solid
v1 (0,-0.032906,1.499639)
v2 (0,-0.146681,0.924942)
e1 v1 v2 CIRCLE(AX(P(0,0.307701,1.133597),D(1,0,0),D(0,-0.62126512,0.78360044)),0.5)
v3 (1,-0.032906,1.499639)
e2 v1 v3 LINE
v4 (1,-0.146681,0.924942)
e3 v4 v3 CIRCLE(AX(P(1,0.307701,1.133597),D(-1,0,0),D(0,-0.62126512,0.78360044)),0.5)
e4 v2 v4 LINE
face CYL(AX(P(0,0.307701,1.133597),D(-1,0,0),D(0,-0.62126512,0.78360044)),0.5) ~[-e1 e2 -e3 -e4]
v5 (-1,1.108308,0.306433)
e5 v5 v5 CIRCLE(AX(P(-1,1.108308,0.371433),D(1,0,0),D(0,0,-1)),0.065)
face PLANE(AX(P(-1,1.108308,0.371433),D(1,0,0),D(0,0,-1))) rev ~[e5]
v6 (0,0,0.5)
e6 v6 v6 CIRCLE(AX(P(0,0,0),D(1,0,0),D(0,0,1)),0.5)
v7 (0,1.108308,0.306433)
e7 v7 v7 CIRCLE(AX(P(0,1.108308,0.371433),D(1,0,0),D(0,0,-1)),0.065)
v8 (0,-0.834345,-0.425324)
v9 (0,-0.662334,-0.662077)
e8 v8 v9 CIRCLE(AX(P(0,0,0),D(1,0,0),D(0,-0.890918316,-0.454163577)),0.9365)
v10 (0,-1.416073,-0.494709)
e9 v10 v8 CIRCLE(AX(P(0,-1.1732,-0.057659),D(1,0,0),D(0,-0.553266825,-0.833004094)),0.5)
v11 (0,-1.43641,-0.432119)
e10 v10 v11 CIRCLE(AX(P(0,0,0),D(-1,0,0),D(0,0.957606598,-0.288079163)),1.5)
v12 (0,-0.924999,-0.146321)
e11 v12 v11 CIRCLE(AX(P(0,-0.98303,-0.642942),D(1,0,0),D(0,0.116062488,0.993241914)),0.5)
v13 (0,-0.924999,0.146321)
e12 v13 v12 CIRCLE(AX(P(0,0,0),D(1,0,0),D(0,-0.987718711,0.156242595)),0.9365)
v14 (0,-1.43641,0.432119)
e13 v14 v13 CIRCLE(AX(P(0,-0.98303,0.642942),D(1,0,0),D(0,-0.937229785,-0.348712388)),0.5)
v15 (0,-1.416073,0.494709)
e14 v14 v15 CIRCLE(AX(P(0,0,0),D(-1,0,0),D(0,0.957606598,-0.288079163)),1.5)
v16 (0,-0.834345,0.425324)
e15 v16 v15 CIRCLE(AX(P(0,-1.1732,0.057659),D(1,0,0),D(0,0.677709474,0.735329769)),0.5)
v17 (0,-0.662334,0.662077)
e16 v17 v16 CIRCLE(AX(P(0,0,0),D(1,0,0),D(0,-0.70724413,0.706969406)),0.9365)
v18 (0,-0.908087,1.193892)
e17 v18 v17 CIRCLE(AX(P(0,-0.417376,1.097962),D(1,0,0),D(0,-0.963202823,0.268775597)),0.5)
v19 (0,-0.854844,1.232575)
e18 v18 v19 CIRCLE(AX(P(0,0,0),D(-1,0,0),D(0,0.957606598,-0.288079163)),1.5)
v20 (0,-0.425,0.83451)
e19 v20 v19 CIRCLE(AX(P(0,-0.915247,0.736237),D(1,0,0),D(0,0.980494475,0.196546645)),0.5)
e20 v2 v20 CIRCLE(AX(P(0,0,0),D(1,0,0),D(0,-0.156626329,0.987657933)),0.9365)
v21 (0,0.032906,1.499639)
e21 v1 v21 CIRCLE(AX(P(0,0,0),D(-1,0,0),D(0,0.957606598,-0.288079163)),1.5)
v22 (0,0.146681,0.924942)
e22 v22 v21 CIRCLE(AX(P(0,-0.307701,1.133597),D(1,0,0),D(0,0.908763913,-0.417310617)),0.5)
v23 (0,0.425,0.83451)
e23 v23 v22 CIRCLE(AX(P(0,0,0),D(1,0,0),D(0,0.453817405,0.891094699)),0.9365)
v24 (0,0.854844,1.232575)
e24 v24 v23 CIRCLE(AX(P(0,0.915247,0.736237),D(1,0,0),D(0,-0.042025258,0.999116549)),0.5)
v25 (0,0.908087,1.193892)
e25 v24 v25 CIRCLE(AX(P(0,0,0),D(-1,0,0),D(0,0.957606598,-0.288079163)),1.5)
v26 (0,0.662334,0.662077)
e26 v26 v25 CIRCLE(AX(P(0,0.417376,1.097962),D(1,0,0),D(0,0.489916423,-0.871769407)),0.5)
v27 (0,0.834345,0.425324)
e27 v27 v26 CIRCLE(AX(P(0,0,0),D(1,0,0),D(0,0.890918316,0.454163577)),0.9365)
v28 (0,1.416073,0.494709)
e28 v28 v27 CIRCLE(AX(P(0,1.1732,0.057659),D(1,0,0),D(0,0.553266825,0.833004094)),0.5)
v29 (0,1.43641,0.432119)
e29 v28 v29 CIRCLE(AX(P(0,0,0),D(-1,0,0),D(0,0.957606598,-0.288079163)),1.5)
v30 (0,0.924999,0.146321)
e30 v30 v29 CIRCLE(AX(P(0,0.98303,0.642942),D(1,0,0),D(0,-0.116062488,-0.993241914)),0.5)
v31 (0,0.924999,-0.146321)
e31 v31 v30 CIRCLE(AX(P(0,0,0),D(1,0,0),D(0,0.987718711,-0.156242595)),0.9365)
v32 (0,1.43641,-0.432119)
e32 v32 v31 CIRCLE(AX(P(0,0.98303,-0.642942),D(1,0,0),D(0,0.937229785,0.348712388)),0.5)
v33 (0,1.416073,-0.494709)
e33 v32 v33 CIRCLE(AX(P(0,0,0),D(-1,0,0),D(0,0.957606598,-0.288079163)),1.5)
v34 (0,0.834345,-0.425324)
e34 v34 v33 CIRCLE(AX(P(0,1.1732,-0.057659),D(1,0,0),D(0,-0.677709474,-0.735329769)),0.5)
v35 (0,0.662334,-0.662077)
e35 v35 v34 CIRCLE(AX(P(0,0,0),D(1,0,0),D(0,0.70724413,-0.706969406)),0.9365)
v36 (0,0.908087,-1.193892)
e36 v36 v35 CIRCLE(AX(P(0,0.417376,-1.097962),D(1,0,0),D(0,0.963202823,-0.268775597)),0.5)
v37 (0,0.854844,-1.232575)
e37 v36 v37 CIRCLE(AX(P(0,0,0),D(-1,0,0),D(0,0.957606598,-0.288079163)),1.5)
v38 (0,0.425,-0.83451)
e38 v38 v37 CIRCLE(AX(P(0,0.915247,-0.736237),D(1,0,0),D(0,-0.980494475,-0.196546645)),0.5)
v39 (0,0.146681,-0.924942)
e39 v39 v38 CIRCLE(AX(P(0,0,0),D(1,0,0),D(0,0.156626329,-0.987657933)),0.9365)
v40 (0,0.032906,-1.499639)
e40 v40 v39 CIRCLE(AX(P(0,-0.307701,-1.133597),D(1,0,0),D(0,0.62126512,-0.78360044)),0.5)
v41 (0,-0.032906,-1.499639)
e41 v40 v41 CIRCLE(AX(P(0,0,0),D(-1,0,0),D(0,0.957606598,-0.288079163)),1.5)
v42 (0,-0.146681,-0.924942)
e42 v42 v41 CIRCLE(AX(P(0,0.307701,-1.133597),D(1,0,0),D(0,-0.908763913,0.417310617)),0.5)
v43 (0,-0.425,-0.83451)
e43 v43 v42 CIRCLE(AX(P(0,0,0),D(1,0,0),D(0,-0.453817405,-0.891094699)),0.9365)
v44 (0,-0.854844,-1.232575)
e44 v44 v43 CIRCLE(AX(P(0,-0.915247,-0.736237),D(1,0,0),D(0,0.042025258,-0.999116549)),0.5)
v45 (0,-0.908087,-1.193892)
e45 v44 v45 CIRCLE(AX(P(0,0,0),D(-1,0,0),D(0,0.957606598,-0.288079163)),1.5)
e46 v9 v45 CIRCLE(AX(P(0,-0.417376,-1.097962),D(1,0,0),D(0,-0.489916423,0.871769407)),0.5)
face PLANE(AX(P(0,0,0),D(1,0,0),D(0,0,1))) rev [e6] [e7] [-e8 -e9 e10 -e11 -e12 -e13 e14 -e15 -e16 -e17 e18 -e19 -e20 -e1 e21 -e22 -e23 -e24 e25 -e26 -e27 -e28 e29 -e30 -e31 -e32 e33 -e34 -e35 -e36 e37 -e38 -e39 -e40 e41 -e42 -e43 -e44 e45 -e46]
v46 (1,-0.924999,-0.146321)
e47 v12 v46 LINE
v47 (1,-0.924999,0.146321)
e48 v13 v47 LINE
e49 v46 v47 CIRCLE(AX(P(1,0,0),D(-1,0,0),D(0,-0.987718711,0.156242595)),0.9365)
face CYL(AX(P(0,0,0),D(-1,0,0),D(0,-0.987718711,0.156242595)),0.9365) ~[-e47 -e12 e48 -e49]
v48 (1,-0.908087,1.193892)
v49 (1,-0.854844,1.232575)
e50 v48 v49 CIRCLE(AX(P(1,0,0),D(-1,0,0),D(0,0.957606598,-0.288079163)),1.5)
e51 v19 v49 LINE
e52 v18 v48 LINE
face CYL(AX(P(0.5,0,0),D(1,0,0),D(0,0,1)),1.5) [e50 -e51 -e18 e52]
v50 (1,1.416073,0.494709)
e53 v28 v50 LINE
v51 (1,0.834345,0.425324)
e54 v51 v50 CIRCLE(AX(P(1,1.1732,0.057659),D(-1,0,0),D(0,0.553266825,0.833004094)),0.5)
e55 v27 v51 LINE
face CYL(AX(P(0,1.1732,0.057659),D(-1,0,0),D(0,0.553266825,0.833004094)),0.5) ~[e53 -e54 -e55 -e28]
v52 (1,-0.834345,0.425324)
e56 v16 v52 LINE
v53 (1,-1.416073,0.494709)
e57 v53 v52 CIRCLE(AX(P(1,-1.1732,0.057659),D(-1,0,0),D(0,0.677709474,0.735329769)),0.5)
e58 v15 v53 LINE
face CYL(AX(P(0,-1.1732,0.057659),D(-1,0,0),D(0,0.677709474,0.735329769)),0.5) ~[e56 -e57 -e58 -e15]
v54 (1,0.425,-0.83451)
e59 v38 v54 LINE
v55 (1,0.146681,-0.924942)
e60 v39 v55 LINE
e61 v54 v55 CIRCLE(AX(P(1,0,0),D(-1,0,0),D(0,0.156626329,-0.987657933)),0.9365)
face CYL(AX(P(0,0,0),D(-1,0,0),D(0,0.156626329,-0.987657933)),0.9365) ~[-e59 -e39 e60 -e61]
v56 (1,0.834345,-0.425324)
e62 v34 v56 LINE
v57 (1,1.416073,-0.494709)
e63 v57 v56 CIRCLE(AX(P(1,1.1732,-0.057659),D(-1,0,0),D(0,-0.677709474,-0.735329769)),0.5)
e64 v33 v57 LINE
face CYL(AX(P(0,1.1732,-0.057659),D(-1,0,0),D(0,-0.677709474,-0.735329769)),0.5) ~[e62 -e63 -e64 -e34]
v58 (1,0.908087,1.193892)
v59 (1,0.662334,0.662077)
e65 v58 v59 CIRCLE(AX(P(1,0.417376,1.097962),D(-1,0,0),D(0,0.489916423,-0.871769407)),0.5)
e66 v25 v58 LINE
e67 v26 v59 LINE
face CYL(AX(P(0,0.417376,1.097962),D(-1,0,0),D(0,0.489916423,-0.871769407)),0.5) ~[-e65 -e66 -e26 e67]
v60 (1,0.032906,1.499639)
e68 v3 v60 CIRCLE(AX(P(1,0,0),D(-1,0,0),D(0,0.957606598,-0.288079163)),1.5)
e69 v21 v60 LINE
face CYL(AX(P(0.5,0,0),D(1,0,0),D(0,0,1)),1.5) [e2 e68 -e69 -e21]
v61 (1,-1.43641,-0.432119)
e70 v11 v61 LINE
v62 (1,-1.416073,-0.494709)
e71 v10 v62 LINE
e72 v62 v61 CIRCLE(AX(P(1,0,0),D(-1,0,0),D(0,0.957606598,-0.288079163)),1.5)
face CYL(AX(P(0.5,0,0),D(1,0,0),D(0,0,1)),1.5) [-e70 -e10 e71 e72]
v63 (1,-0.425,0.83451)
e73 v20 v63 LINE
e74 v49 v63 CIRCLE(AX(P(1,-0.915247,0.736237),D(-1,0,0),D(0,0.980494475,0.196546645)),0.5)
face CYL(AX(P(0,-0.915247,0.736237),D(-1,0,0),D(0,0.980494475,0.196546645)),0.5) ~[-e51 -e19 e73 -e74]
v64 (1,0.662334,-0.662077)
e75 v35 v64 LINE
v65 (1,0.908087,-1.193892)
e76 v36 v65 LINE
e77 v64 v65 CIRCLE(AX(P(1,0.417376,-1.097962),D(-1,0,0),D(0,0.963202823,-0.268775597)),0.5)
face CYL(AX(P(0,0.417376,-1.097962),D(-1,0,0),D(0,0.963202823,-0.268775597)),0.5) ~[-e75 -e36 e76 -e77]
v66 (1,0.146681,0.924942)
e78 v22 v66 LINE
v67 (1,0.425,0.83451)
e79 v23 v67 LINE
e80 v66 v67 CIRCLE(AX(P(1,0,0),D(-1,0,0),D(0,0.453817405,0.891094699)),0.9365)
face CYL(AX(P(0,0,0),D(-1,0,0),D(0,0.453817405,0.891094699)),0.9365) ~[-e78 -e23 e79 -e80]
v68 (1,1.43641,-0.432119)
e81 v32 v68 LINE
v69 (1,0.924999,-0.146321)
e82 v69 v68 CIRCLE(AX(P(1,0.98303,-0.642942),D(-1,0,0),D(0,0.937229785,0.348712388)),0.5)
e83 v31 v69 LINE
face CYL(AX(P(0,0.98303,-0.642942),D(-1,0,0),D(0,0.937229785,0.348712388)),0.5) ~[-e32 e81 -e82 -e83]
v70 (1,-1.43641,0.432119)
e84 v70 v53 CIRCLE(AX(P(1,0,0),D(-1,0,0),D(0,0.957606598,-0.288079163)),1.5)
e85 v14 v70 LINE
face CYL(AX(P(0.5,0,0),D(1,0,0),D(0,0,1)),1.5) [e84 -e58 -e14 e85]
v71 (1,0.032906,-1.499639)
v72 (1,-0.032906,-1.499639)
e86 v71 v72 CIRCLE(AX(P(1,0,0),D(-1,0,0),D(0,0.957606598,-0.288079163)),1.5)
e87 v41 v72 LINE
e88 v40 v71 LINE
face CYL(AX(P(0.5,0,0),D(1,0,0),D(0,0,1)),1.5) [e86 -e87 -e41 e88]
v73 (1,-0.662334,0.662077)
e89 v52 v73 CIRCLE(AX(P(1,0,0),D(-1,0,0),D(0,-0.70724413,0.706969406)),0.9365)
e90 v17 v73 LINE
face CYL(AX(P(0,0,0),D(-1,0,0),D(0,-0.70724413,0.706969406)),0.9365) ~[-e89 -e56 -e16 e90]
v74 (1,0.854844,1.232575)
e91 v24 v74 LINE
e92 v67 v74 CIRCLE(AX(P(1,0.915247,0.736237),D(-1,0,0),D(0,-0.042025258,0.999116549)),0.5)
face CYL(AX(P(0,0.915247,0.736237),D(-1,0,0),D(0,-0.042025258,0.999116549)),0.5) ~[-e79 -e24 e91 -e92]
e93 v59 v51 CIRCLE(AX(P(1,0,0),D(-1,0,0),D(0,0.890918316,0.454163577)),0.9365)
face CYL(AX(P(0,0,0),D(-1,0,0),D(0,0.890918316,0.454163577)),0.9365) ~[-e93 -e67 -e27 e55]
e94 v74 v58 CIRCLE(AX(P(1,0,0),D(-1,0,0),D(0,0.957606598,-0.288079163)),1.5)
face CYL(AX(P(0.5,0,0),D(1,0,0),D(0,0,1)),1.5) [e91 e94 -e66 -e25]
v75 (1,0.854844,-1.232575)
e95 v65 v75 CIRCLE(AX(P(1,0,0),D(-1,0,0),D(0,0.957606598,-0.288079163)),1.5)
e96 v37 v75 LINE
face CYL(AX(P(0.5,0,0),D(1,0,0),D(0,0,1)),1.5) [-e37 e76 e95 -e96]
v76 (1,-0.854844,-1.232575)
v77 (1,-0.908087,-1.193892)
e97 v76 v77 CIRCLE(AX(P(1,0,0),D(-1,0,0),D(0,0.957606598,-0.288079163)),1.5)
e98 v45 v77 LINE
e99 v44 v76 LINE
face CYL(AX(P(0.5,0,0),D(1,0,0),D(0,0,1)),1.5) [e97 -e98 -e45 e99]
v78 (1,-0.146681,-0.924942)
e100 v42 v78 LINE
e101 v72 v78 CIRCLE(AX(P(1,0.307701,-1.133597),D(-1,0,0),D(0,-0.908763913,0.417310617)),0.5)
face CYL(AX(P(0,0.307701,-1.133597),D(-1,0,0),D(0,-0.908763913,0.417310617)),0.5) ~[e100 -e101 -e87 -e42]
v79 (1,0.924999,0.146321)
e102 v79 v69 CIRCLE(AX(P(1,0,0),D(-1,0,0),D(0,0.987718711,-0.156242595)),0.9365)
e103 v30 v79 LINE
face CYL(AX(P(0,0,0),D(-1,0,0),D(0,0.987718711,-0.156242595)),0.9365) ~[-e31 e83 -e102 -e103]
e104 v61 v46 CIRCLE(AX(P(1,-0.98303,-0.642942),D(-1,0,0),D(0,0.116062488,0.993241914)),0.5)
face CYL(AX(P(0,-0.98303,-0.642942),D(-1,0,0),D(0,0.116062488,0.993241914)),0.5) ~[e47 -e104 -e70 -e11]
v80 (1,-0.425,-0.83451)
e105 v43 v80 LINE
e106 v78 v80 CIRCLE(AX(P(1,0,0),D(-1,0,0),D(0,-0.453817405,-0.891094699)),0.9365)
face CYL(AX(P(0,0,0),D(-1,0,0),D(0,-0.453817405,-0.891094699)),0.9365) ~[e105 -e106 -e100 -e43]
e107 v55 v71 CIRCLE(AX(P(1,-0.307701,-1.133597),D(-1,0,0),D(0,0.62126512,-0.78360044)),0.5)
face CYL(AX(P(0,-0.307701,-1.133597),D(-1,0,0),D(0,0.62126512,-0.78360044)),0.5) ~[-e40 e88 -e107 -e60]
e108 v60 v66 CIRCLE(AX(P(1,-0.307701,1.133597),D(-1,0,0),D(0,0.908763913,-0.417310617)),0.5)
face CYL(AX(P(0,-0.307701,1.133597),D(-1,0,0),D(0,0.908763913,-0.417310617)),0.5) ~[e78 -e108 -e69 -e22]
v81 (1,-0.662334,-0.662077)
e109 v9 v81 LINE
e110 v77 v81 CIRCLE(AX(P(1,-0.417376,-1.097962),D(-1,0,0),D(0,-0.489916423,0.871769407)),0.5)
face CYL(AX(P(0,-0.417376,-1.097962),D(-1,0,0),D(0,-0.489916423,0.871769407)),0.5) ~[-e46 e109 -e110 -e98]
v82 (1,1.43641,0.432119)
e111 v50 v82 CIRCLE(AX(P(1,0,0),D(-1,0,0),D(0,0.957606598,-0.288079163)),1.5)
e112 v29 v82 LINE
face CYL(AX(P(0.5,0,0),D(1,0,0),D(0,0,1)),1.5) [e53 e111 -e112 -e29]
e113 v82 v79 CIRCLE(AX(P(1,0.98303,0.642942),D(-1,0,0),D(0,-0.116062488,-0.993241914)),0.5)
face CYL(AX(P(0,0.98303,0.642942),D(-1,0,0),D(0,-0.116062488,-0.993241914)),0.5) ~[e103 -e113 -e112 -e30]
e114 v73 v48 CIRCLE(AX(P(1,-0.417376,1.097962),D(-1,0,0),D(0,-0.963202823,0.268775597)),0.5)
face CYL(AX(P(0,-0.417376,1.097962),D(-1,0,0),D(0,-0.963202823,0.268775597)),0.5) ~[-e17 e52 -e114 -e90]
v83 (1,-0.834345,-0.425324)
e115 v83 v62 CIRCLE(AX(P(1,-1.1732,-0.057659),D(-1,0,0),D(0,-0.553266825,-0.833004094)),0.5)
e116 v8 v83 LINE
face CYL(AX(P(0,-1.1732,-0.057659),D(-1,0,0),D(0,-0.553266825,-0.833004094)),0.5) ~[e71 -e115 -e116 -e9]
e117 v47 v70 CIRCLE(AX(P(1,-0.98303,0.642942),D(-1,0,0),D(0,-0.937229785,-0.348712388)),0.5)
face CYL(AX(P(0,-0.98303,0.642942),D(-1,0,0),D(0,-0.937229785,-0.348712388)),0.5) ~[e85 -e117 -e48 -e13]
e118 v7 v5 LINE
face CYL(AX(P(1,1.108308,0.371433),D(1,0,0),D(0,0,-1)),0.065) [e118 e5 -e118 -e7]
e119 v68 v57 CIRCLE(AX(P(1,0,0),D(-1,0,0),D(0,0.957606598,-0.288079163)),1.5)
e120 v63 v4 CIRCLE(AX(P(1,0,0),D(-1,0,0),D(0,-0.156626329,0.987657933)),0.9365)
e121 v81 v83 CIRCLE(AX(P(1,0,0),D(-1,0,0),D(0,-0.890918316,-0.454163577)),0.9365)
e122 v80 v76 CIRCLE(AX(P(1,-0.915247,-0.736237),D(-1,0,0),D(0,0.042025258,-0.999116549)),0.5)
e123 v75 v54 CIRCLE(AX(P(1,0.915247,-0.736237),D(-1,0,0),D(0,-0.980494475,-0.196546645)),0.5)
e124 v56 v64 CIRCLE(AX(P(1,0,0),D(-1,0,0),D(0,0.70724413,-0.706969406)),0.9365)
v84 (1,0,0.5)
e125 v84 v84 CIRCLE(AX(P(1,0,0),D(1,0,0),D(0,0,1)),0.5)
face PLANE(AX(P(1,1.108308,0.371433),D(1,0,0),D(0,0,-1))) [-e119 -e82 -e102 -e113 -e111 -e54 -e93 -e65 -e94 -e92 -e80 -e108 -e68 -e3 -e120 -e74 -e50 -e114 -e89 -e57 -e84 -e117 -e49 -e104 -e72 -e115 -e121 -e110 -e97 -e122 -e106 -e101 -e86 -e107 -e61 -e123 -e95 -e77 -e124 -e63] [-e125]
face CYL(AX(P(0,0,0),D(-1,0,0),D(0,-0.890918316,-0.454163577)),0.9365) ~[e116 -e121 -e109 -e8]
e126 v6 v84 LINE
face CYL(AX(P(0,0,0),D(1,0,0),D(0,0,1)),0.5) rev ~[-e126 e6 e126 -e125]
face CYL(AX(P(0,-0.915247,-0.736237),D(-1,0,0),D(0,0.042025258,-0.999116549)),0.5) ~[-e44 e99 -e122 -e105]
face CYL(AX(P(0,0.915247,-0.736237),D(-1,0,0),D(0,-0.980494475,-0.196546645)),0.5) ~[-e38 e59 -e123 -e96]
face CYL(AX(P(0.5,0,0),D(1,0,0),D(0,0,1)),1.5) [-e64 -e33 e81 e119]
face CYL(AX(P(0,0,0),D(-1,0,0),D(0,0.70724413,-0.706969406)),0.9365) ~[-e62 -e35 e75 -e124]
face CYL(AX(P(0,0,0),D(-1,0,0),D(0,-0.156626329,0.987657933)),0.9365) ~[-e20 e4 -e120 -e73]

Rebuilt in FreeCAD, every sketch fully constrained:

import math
import FreeCAD as App
import Part
import Sketcher
from FreeCAD import Vector
Q = App.Units.Quantity

doc = App.newDocument("Part")
body = doc.addObject("PartDesign::Body", "Body")

# Sketch on XZ plane
sketch1 = doc.addObject("Sketcher::SketchObject", "Sketch")
body.addObject(sketch1)
sketch1.AttachmentSupport = (doc.XZ_Plane, [""])
sketch1.MapMode = "FlatFace"
sketch1.addGeometry(Part.LineSegment(Vector(0, -1.5, 0), Vector(0, 0, 0)), False)
sketch1.addGeometry(Part.LineSegment(Vector(0, 0, 0), Vector(1, 0, 0)), False)
sketch1.addGeometry(Part.LineSegment(Vector(1, 0, 0), Vector(1, -1.5, 0)), False)
sketch1.addGeometry(Part.LineSegment(Vector(1, -1.5, 0), Vector(0, -1.5, 0)), False)
sketch1.addConstraint(Sketcher.Constraint("Coincident", 0, 2, 1, 1))
sketch1.addConstraint(Sketcher.Constraint("Coincident", 1, 2, 2, 1))
sketch1.addConstraint(Sketcher.Constraint("Coincident", 2, 2, 3, 1))
sketch1.addConstraint(Sketcher.Constraint("Coincident", 3, 2, 0, 1))
sketch1.addConstraint(Sketcher.Constraint("Vertical", 0))
sketch1.addConstraint(Sketcher.Constraint("Horizontal", 1))
sketch1.addConstraint(Sketcher.Constraint("Vertical", 2))
sketch1.addConstraint(Sketcher.Constraint("Horizontal", 3))
sketch1.addConstraint(Sketcher.Constraint("Coincident", 0, 2, -1, 1))
sketch1.addConstraint(Sketcher.Constraint("DistanceX", 1, 1, 1, 2, Q("1 mm")))
sketch1.addConstraint(Sketcher.Constraint("DistanceY", 0, 1, 0, 2, Q("1.5 mm")))
revolution = doc.addObject("PartDesign::Revolution", "Revolution")
body.addObject(revolution)
revolution.Profile = sketch1
revolution.ReferenceAxis = (sketch1, ["H_Axis"])
revolution.Angle = 360

# Sketch on YZ plane
sketch2 = doc.addObject("Sketcher::SketchObject", "Sketch001")
body.addObject(sketch2)
sketch2.AttachmentSupport = (doc.YZ_Plane, [""])
sketch2.MapMode = "FlatFace"
sketch2.addGeometry(Part.ArcOfCircle(Part.Circle(Vector(0, 0, 0), Vector(0, 0, 1), 0.94), math.radians(-8.99), math.radians(8.99)), False)
sketch2.addGeometry(Part.ArcOfCircle(Part.Circle(Vector(0.98, -0.64, 0), Vector(0, 0, 1), 0.5), math.radians(20), math.radians(97)), False)
sketch2.addGeometry(Part.ArcOfCircle(Part.Circle(Vector(0, 0, 0), Vector(0, 0, 1), 1.53), math.radians(-18), math.radians(18)), False)
sketch2.addGeometry(Part.ArcOfCircle(Part.Circle(Vector(0.98, 0.64, 0), Vector(0, 0, 1), 0.5), math.radians(-97), math.radians(-20)), False)
sketch2.addConstraint(Sketcher.Constraint("Coincident", 0, 1, 1, 2))
sketch2.addConstraint(Sketcher.Constraint("Coincident", 1, 1, 2, 1))
sketch2.addConstraint(Sketcher.Constraint("Coincident", 2, 2, 3, 2))
sketch2.addConstraint(Sketcher.Constraint("Coincident", 3, 1, 0, 2))
sketch2.addConstraint(Sketcher.Constraint("Coincident", 0, 3, -1, 1))
sketch2.addConstraint(Sketcher.Constraint("Coincident", 2, 3, -1, 1))
sketch2.addConstraint(Sketcher.Constraint("Equal", 1, 3))
sketch2.addConstraint(Sketcher.Constraint("Symmetric", 1, 3, 3, 3, -1))
sketch2.addConstraint(Sketcher.Constraint("Radius", 1, Q("0.5 mm")))
sketch2.addConstraint(Sketcher.Constraint("Radius", 0, Q("0.9365 mm")))
sketch2.addConstraint(Sketcher.Constraint("Radius", 2, Q("1.5254 mm")))
sketch2.addConstraint(Sketcher.Constraint("DistanceX", -1, 1, 0, 1, Q("0.924999 mm")))
sketch2.addConstraint(Sketcher.Constraint("DistanceX", -1, 1, 1, 3, Q("0.98303 mm")))
pocket1 = doc.addObject("PartDesign::Pocket", "Pocket")
body.addObject(pocket1)
pocket1.Profile = sketch2
pocket1.Type = "ThroughAll"
pocket1.Reversed = True
doc.recompute()

polarpattern = doc.addObject("PartDesign::PolarPattern", "PolarPattern")
body.addObject(polarpattern)
polarpattern.Originals = [pocket1]
polarpattern.Axis = (doc.X_Axis, [""])
polarpattern.Angle = 360
polarpattern.Occurrences = 10
body.Tip = polarpattern

# Sketch on YZ plane
sketch3 = doc.addObject("Sketcher::SketchObject", "Sketch002")
body.addObject(sketch3)
sketch3.AttachmentSupport = (doc.YZ_Plane, [""])
sketch3.MapMode = "FlatFace"
sketch3.addGeometry(Part.Circle(Vector(0, 0, 0), Vector(0, 0, 1), 0.5), False)
sketch3.addConstraint(Sketcher.Constraint("Coincident", 0, 3, -1, 1))
sketch3.addConstraint(Sketcher.Constraint("Diameter", 0, Q("1 mm")))
pocket2 = doc.addObject("PartDesign::Pocket", "Pocket001")
body.addObject(pocket2)
pocket2.Profile = sketch3
pocket2.Length = 100.000102
pocket2.Midplane = True

# Sketch on YZ plane
sketch4 = doc.addObject("Sketcher::SketchObject", "Sketch003")
body.addObject(sketch4)
sketch4.AttachmentSupport = (doc.YZ_Plane, [""])
sketch4.MapMode = "FlatFace"
sketch4.AttachmentOffset = App.Placement(Vector(0, 0, 1), App.Rotation())
sketch4.addGeometry(Part.Circle(Vector(1.11, 0.37, 0), Vector(0, 0, 1), 0.07), False)
sketch4.addConstraint(Sketcher.Constraint("Diameter", 0, Q("0.13 mm")))
sketch4.addConstraint(Sketcher.Constraint("DistanceX", -1, 1, 0, 3, Q("1.108308 mm")))
sketch4.addConstraint(Sketcher.Constraint("DistanceY", -1, 1, 0, 3, Q("0.371433 mm")))
pad1 = doc.addObject("PartDesign::Pad", "Pad")
body.addObject(pad1)
pad1.Profile = sketch4
pad1.Length = 2
pad1.Reversed = True

doc.recompute()
